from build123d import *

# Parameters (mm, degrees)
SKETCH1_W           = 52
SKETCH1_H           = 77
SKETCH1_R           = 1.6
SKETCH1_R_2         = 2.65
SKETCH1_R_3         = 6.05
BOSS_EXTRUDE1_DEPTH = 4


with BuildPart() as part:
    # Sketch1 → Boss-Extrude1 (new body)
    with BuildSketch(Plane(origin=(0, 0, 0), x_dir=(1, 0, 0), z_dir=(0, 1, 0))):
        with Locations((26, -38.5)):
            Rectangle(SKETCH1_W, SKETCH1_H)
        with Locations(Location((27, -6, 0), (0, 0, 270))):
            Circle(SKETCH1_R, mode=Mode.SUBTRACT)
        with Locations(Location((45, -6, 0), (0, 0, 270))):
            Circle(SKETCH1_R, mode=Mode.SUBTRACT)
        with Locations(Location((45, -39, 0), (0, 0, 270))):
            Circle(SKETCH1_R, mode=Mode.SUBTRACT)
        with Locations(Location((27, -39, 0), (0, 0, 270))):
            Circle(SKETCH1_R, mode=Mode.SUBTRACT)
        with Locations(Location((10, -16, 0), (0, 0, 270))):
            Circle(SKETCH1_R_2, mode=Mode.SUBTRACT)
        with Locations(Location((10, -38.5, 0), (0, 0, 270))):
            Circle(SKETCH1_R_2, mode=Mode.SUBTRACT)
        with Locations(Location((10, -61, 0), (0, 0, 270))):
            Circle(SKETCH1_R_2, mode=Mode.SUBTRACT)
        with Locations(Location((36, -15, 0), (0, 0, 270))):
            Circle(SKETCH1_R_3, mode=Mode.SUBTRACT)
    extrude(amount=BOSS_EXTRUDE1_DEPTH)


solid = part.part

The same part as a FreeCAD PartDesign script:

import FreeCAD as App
import Part
import Sketcher

V = App.Vector


def add_polygon(sketch, points):
    """Adds a closed chain of lines whose ends are joined by coincident constraints."""
    first, n = sketch.GeometryCount, len(points)
    for a, b in zip(points, points[1:] + points[:1]):
        sketch.addGeometry(Part.LineSegment(App.Vector(*a, 0), App.Vector(*b, 0)), False)
    for i in range(n):
        sketch.addConstraint(Sketcher.Constraint("Coincident", first + i, 2, first + (i + 1) % n, 1))

doc = App.newDocument("Part")
body = doc.addObject("PartDesign::Body", "Body")

# Sketch on XZ plane
sketch1 = body.newObject("Sketcher::SketchObject", "Sketch")
sketch1.AttachmentSupport = (doc.getObject("XZ_Plane"), [""])
sketch1.MapMode = "FlatFace"
add_polygon(sketch1, [(0, 0), (0, 77), (52, 77), (52, 0)])  # lines 0-3
sketch1.addGeometry(Part.Circle(V(10, 61, 0), V(0, 0, 1), 2.6), False)  # 4
sketch1.addGeometry(Part.Circle(V(10, 38.5, 0), V(0, 0, 1), 2.6), False)  # 5
sketch1.addGeometry(Part.Circle(V(27, 39, 0), V(0, 0, 1), 1.6), False)  # 6
sketch1.addGeometry(Part.Circle(V(45, 39, 0), V(0, 0, 1), 1.6), False)  # 7
sketch1.addGeometry(Part.Circle(V(10, 16, 0), V(0, 0, 1), 2.6), False)  # 8
sketch1.addGeometry(Part.Circle(V(36, 15, 0), V(0, 0, 1), 6), False)  # 9
sketch1.addGeometry(Part.Circle(V(27, 6, 0), V(0, 0, 1), 1.6), False)  # 10
sketch1.addGeometry(Part.Circle(V(45, 6, 0), V(0, 0, 1), 1.6), False)  # 11
sketch1.addConstraint([
    Sketcher.Constraint("Vertical", 0),
    Sketcher.Constraint("Horizontal", 1),
    Sketcher.Constraint("Vertical", 2),
    Sketcher.Constraint("Horizontal", 3),
    Sketcher.Constraint("Coincident", 3, 2, -1, 1),
    Sketcher.Constraint("Equal", 4, 5),
    Sketcher.Constraint("Equal", 6, 7),
    Sketcher.Constraint("Equal", 5, 8),
    Sketcher.Constraint("Equal", 7, 10),
    Sketcher.Constraint("Equal", 10, 11),
    Sketcher.Constraint("Horizontal", 6, 3, 7, 3),
    Sketcher.Constraint("Horizontal", 10, 3, 11, 3),
    Sketcher.Constraint("Vertical", 4, 3, 5, 3),
    Sketcher.Constraint("Vertical", 5, 3, 8, 3),
    Sketcher.Constraint("Vertical", 6, 3, 10, 3),
    Sketcher.Constraint("Vertical", 7, 3, 11, 3),
    Sketcher.Constraint("Diameter", 4, 5.3),
    Sketcher.Constraint("Diameter", 6, 3.2),
    Sketcher.Constraint("Diameter", 9, 12.1),
    Sketcher.Constraint("DistanceX", 1, 1, 1, 2, 52.0),
    Sketcher.Constraint("DistanceY", 0, 1, 0, 2, 77.0),
    Sketcher.Constraint("DistanceX", -1, 1, 4, 3, 10.0),
    Sketcher.Constraint("DistanceY", -1, 1, 4, 3, 61.0),
    Sketcher.Constraint("DistanceX", -1, 1, 6, 3, 27.0),
    Sketcher.Constraint("DistanceY", -1, 1, 6, 3, 39.0),
    Sketcher.Constraint("DistanceX", -1, 1, 7, 3, 45.0),
    Sketcher.Constraint("DistanceY", -1, 1, 8, 3, 16.0),
    Sketcher.Constraint("DistanceX", -1, 1, 9, 3, 36.0),
    Sketcher.Constraint("DistanceY", -1, 1, 9, 3, 15.0),
    Sketcher.Constraint("DistanceY", -1, 1, 10, 3, 6.0),
    Sketcher.Constraint("DistanceY", -1, 1, 5, 3, 38.5),
])
pad1 = body.newObject("PartDesign::Pad", "Pad")
pad1.Profile = sketch1
pad1.Length = 4
pad1.Reversed = True

doc.recompute()
